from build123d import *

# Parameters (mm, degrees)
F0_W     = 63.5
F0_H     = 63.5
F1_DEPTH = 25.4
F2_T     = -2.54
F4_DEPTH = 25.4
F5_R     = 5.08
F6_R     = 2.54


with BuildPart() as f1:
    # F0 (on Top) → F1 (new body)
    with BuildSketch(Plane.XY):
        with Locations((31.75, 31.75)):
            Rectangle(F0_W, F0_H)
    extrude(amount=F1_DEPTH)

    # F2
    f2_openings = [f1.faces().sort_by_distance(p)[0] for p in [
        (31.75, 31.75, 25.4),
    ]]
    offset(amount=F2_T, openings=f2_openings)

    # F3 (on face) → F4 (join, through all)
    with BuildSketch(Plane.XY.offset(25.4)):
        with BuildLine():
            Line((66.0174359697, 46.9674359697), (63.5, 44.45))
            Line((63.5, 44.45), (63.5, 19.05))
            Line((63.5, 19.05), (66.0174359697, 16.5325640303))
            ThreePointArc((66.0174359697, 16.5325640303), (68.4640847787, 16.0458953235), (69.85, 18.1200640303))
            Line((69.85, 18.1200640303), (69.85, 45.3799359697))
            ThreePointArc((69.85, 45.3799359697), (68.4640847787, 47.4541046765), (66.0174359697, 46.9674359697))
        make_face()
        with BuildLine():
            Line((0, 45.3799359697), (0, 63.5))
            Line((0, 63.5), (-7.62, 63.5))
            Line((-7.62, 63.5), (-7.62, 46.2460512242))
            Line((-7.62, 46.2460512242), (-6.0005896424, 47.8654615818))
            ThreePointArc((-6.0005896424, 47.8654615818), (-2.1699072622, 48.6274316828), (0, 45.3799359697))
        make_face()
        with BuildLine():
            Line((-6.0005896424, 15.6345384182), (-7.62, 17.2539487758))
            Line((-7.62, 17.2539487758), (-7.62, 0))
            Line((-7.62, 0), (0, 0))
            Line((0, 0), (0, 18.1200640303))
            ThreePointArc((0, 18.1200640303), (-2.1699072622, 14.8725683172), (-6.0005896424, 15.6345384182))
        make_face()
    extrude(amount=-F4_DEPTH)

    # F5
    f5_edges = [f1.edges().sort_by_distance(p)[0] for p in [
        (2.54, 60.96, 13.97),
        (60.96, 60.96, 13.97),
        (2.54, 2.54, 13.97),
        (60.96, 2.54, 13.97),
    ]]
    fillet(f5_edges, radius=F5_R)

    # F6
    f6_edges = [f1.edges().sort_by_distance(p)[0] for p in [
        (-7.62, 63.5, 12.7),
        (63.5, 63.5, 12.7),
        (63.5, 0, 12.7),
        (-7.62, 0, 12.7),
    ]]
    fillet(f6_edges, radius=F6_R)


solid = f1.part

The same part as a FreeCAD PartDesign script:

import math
import FreeCAD as App
import Part
import Sketcher

V = App.Vector
Q = App.Units.Quantity


def edges_at(feature, points):
    """Names of the edges that pass closest to the given points."""
    edges = feature.Shape.Edges
    near = lambda p: min(range(len(edges)), key=lambda i: edges[i].distToShape(Part.Vertex(*p))[0])
    return sorted({f"Edge{near(p) + 1}" for p in points})


def faces_at(feature, points):
    """Names of the faces that lie closest to the given points."""
    faces = feature.Shape.Faces
    near = lambda p: min(range(len(faces)), key=lambda i: faces[i].distToShape(Part.Vertex(*p))[0])
    return sorted({f"Face{near(p) + 1}" for p in points})

doc = App.newDocument("Part")
params = doc.addObject("Spreadsheet::Sheet", "Params")
for row, (alias, value) in enumerate([
    ("sketch1_width", "2.5 in"),
    ("pad1_length", "1 in"),
    ("thickness_wall", "0.1 in"),
    ("sketch2_height", "1 in"),
    ("sketch2_width", "0.3 in"),
    ("fillet_radius", "0.2 in"),
    ("fillet2_radius", "0.1 in"),
], start=1):
    params.set(f"A{row}", alias)
    params.set(f"B{row}", "=" + value)
    params.setAlias(f"B{row}", alias)

body = doc.addObject("PartDesign::Body", "Body")

# Sketch on XY plane
sketch1 = body.newObject("Sketcher::SketchObject", "Sketch")
sketch1.AttachmentSupport = (doc.getObject("XY_Plane"), [""])
sketch1.MapMode = "FlatFace"
sketch1.addGeometry(Part.LineSegment(V(0, 64, 0), V(0, 0, 0)), False)
sketch1.addGeometry(Part.LineSegment(V(0, 0, 0), V(64, 0, 0)), False)
sketch1.addGeometry(Part.LineSegment(V(64, 0, 0), V(64, 64, 0)), False)
sketch1.addGeometry(Part.LineSegment(V(64, 64, 0), V(0, 64, 0)), False)
sketch1.addConstraint(Sketcher.Constraint("Coincident", 0, 2, 1, 1))
sketch1.addConstraint(Sketcher.Constraint("Coincident", 1, 2, 2, 1))
sketch1.addConstraint(Sketcher.Constraint("Coincident", 2, 2, 3, 1))
sketch1.addConstraint(Sketcher.Constraint("Coincident", 3, 2, 0, 1))
sketch1.addConstraint(Sketcher.Constraint("Vertical", 0))
sketch1.addConstraint(Sketcher.Constraint("Horizontal", 1))
sketch1.addConstraint(Sketcher.Constraint("Vertical", 2))
sketch1.addConstraint(Sketcher.Constraint("Horizontal", 3))
sketch1.addConstraint(Sketcher.Constraint("Coincident", 0, 2, -1, 1))
sketch1.addConstraint(Sketcher.Constraint("Equal", 3, 0))
sketch1.addConstraint(Sketcher.Constraint("DistanceX", 1, 1, 1, 2, Q("2.5 in")))
sketch1.setExpression("Constraints[10]", "Params.sketch1_width")
pad1 = body.newObject("PartDesign::Pad", "Pad")
pad1.Profile = sketch1
pad1.setExpression("Length", "Params.pad1_length")
doc.recompute()

thickness = body.newObject("PartDesign::Thickness", "Thickness")
thickness.Base = (pad1, faces_at(pad1, [(31.75, 31.75, 25.4)]))
thickness.setExpression("Value", "Params.thickness_wall")
thickness.Reversed = True
thickness.Join = "Arc"

# Sketch on XY plane
sketch2 = body.newObject("Sketcher::SketchObject", "Sketch001")
sketch2.AttachmentSupport = (doc.getObject("XY_Plane"), [""])
sketch2.MapMode = "FlatFace"
sketch2.AttachmentOffset = App.Placement(V(0, 0, 1 * 25.4), App.Rotation())
sketch2.addGeometry(Part.LineSegment(V(66, 47, 0), V(63.5, 44.5, 0)), False)
sketch2.addGeometry(Part.LineSegment(V(63.5, 44.5, 0), V(63.5, 19.1, 0)), False)
sketch2.addGeometry(Part.LineSegment(V(63.5, 19.1, 0), V(66, 16.5, 0)), False)
sketch2.addGeometry(Part.ArcOfCircle(Part.Circle(V(67.6, 18.1, 0), V(0, 0, 1), 2.2), math.radians(-135), math.radians(0)), False)
sketch2.addGeometry(Part.LineSegment(V(69.8, 18.1, 0), V(69.8, 45.4, 0)), False)
sketch2.addGeometry(Part.ArcOfCircle(Part.Circle(V(67.6, 45.4, 0), V(0, 0, 1), 2.2), math.radians(0), math.radians(135)), False)
sketch2.addGeometry(Part.LineSegment(V(0, 45.4, 0), V(0, 63.5, 0)), False)
sketch2.addGeometry(Part.LineSegment(V(0, 63.5, 0), V(-7.6, 63.5, 0)), False)
sketch2.addGeometry(Part.LineSegment(V(-7.6, 63.5, 0), V(-7.6, 46.2, 0)), False)
sketch2.addGeometry(Part.LineSegment(V(-7.6, 46.2, 0), V(-6, 47.9, 0)), False)
sketch2.addGeometry(Part.ArcOfCircle(Part.Circle(V(-3.5, 45.4, 0), V(0, 0, 1), 3.5), math.radians(0), math.radians(135)), False)
sketch2.addGeometry(Part.LineSegment(V(-6, 15.6, 0), V(-7.6, 17.3, 0)), False)
sketch2.addGeometry(Part.LineSegment(V(-7.6, 17.3, 0), V(-7.6, 0, 0)), False)
sketch2.addGeometry(Part.LineSegment(V(-7.6, 0, 0), V(0, 0, 0)), False)
sketch2.addGeometry(Part.LineSegment(V(0, 0, 0), V(0, 18.1, 0)), False)
sketch2.addGeometry(Part.ArcOfCircle(Part.Circle(V(-3.5, 18.1, 0), V(0, 0, 1), 3.5), math.radians(-135), math.radians(0)), False)
sketch2.addConstraint(Sketcher.Constraint("Coincident", 0, 2, 1, 1))
sketch2.addConstraint(Sketcher.Constraint("Coincident", 1, 2, 2, 1))
sketch2.addConstraint(Sketcher.Constraint("Tangent", 2, 2, 3, 1))
sketch2.addConstraint(Sketcher.Constraint("Tangent", 3, 2, 4, 1))
sketch2.addConstraint(Sketcher.Constraint("Tangent", 4, 2, 5, 1))
sketch2.addConstraint(Sketcher.Constraint("Tangent", 5, 2, 0, 1))
sketch2.addConstraint(Sketcher.Constraint("Coincident", 6, 2, 7, 1))
sketch2.addConstraint(Sketcher.Constraint("Coincident", 7, 2, 8, 1))
sketch2.addConstraint(Sketcher.Constraint("Coincident", 8, 2, 9, 1))
sketch2.addConstraint(Sketcher.Constraint("Tangent", 9, 2, 10, 2))
sketch2.addConstraint(Sketcher.Constraint("Tangent", 10, 1, 6, 1))
sketch2.addConstraint(Sketcher.Constraint("Coincident", 11, 2, 12, 1))
sketch2.addConstraint(Sketcher.Constraint("Coincident", 12, 2, 13, 1))
sketch2.addConstraint(Sketcher.Constraint("Coincident", 13, 2, 14, 1))
sketch2.addConstraint(Sketcher.Constraint("Tangent", 14, 2, 15, 2))
sketch2.addConstraint(Sketcher.Constraint("Tangent", 15, 1, 11, 1))
sketch2.addConstraint(Sketcher.Constraint("Vertical", 1))
sketch2.addConstraint(Sketcher.Constraint("Vertical", 4))
sketch2.addConstraint(Sketcher.Constraint("Vertical", 6))
sketch2.addConstraint(Sketcher.Constraint("Horizontal", 7))
sketch2.addConstraint(Sketcher.Constraint("Vertical", 8))
sketch2.addConstraint(Sketcher.Constraint("Vertical", 12))
sketch2.addConstraint(Sketcher.Constraint("Horizontal", 13))
sketch2.addConstraint(Sketcher.Constraint("Vertical", 14))
sketch2.addConstraint(Sketcher.Constraint("Coincident", 13, 2, -1, 1))
sketch2.addConstraint(Sketcher.Constraint("Equal", 3, 5))
sketch2.addConstraint(Sketcher.Constraint("Equal", 10, 15))
sketch2.addConstraint(Sketcher.Constraint("PointOnObject", 6, 2, -2))
sketch2.addConstraint(Sketcher.Constraint("Perpendicular", 0, 2))
sketch2.addConstraint(Sketcher.Constraint("Perpendicular", 2, 9))
sketch2.addConstraint(Sketcher.Constraint("Perpendicular", 9, 11))
sketch2.addConstraint(Sketcher.Constraint("Horizontal", 5, 3, 10, 3))
sketch2.addConstraint(Sketcher.Constraint("Horizontal", 3, 3, 15, 3))
sketch2.addConstraint(Sketcher.Constraint("Vertical", 2, 2, 5, 2))
sketch2.addConstraint(Sketcher.Constraint("Vertical", 8, 2, 11, 2))
sketch2.addConstraint(Sketcher.Constraint("Equal", 8, 12))
sketch2.addConstraint(Sketcher.Constraint("DistanceY", 1, 2, 1, 1, Q("1 in")))
sketch2.addConstraint(Sketcher.Constraint("DistanceX", 7, 2, 7, 1, Q("0.3 in")))
sketch2.addConstraint(Sketcher.Constraint("DistanceX", -1, 1, 0, 2, Q("2.5 in")))
sketch2.addConstraint(Sketcher.Constraint("DistanceY", -1, 1, 6, 2, Q("2.5 in")))
sketch2.addConstraint(Sketcher.Constraint("DistanceX", 10, 3, 5, 3, Q("2.8 in")))
sketch2.addConstraint(Sketcher.Constraint("DistanceX", -1, 1, 3, 2, Q("2.75 in")))
sketch2.addConstraint(Sketcher.Constraint("DistanceX", 2, 2, 3, 3, Q("0.0625 in")))
sketch2.setExpression("Constraints[36]", "Params.sketch2_height")
sketch2.setExpression("Constraints[37]", "Params.sketch2_width")
pad2 = body.newObject("PartDesign::Pad", "Pad001")
pad2.Profile = sketch2
pad2.Type = "UpToLast"
pad2.Reversed = True
doc.recompute()

fillet = body.newObject("PartDesign::Fillet", "Fillet")
fillet.Base = (pad2, edges_at(pad2, [
    (2.54, 60.96, 13.97),
    (60.96, 60.96, 13.97),
    (2.54, 2.54, 13.97),
    (60.96, 2.54, 13.97),
]))
fillet.setExpression("Radius", "Params.fillet_radius")
doc.recompute()

fillet2 = body.newObject("PartDesign::Fillet", "Fillet001")
fillet2.Base = (fillet, edges_at(fillet, [
    (-7.62, 63.5, 12.7),
    (63.5, 63.5, 12.7),
    (63.5, 0, 12.7),
    (-7.62, 0, 12.7),
]))
fillet2.setExpression("Radius", "Params.fillet2_radius")

doc.recompute()
